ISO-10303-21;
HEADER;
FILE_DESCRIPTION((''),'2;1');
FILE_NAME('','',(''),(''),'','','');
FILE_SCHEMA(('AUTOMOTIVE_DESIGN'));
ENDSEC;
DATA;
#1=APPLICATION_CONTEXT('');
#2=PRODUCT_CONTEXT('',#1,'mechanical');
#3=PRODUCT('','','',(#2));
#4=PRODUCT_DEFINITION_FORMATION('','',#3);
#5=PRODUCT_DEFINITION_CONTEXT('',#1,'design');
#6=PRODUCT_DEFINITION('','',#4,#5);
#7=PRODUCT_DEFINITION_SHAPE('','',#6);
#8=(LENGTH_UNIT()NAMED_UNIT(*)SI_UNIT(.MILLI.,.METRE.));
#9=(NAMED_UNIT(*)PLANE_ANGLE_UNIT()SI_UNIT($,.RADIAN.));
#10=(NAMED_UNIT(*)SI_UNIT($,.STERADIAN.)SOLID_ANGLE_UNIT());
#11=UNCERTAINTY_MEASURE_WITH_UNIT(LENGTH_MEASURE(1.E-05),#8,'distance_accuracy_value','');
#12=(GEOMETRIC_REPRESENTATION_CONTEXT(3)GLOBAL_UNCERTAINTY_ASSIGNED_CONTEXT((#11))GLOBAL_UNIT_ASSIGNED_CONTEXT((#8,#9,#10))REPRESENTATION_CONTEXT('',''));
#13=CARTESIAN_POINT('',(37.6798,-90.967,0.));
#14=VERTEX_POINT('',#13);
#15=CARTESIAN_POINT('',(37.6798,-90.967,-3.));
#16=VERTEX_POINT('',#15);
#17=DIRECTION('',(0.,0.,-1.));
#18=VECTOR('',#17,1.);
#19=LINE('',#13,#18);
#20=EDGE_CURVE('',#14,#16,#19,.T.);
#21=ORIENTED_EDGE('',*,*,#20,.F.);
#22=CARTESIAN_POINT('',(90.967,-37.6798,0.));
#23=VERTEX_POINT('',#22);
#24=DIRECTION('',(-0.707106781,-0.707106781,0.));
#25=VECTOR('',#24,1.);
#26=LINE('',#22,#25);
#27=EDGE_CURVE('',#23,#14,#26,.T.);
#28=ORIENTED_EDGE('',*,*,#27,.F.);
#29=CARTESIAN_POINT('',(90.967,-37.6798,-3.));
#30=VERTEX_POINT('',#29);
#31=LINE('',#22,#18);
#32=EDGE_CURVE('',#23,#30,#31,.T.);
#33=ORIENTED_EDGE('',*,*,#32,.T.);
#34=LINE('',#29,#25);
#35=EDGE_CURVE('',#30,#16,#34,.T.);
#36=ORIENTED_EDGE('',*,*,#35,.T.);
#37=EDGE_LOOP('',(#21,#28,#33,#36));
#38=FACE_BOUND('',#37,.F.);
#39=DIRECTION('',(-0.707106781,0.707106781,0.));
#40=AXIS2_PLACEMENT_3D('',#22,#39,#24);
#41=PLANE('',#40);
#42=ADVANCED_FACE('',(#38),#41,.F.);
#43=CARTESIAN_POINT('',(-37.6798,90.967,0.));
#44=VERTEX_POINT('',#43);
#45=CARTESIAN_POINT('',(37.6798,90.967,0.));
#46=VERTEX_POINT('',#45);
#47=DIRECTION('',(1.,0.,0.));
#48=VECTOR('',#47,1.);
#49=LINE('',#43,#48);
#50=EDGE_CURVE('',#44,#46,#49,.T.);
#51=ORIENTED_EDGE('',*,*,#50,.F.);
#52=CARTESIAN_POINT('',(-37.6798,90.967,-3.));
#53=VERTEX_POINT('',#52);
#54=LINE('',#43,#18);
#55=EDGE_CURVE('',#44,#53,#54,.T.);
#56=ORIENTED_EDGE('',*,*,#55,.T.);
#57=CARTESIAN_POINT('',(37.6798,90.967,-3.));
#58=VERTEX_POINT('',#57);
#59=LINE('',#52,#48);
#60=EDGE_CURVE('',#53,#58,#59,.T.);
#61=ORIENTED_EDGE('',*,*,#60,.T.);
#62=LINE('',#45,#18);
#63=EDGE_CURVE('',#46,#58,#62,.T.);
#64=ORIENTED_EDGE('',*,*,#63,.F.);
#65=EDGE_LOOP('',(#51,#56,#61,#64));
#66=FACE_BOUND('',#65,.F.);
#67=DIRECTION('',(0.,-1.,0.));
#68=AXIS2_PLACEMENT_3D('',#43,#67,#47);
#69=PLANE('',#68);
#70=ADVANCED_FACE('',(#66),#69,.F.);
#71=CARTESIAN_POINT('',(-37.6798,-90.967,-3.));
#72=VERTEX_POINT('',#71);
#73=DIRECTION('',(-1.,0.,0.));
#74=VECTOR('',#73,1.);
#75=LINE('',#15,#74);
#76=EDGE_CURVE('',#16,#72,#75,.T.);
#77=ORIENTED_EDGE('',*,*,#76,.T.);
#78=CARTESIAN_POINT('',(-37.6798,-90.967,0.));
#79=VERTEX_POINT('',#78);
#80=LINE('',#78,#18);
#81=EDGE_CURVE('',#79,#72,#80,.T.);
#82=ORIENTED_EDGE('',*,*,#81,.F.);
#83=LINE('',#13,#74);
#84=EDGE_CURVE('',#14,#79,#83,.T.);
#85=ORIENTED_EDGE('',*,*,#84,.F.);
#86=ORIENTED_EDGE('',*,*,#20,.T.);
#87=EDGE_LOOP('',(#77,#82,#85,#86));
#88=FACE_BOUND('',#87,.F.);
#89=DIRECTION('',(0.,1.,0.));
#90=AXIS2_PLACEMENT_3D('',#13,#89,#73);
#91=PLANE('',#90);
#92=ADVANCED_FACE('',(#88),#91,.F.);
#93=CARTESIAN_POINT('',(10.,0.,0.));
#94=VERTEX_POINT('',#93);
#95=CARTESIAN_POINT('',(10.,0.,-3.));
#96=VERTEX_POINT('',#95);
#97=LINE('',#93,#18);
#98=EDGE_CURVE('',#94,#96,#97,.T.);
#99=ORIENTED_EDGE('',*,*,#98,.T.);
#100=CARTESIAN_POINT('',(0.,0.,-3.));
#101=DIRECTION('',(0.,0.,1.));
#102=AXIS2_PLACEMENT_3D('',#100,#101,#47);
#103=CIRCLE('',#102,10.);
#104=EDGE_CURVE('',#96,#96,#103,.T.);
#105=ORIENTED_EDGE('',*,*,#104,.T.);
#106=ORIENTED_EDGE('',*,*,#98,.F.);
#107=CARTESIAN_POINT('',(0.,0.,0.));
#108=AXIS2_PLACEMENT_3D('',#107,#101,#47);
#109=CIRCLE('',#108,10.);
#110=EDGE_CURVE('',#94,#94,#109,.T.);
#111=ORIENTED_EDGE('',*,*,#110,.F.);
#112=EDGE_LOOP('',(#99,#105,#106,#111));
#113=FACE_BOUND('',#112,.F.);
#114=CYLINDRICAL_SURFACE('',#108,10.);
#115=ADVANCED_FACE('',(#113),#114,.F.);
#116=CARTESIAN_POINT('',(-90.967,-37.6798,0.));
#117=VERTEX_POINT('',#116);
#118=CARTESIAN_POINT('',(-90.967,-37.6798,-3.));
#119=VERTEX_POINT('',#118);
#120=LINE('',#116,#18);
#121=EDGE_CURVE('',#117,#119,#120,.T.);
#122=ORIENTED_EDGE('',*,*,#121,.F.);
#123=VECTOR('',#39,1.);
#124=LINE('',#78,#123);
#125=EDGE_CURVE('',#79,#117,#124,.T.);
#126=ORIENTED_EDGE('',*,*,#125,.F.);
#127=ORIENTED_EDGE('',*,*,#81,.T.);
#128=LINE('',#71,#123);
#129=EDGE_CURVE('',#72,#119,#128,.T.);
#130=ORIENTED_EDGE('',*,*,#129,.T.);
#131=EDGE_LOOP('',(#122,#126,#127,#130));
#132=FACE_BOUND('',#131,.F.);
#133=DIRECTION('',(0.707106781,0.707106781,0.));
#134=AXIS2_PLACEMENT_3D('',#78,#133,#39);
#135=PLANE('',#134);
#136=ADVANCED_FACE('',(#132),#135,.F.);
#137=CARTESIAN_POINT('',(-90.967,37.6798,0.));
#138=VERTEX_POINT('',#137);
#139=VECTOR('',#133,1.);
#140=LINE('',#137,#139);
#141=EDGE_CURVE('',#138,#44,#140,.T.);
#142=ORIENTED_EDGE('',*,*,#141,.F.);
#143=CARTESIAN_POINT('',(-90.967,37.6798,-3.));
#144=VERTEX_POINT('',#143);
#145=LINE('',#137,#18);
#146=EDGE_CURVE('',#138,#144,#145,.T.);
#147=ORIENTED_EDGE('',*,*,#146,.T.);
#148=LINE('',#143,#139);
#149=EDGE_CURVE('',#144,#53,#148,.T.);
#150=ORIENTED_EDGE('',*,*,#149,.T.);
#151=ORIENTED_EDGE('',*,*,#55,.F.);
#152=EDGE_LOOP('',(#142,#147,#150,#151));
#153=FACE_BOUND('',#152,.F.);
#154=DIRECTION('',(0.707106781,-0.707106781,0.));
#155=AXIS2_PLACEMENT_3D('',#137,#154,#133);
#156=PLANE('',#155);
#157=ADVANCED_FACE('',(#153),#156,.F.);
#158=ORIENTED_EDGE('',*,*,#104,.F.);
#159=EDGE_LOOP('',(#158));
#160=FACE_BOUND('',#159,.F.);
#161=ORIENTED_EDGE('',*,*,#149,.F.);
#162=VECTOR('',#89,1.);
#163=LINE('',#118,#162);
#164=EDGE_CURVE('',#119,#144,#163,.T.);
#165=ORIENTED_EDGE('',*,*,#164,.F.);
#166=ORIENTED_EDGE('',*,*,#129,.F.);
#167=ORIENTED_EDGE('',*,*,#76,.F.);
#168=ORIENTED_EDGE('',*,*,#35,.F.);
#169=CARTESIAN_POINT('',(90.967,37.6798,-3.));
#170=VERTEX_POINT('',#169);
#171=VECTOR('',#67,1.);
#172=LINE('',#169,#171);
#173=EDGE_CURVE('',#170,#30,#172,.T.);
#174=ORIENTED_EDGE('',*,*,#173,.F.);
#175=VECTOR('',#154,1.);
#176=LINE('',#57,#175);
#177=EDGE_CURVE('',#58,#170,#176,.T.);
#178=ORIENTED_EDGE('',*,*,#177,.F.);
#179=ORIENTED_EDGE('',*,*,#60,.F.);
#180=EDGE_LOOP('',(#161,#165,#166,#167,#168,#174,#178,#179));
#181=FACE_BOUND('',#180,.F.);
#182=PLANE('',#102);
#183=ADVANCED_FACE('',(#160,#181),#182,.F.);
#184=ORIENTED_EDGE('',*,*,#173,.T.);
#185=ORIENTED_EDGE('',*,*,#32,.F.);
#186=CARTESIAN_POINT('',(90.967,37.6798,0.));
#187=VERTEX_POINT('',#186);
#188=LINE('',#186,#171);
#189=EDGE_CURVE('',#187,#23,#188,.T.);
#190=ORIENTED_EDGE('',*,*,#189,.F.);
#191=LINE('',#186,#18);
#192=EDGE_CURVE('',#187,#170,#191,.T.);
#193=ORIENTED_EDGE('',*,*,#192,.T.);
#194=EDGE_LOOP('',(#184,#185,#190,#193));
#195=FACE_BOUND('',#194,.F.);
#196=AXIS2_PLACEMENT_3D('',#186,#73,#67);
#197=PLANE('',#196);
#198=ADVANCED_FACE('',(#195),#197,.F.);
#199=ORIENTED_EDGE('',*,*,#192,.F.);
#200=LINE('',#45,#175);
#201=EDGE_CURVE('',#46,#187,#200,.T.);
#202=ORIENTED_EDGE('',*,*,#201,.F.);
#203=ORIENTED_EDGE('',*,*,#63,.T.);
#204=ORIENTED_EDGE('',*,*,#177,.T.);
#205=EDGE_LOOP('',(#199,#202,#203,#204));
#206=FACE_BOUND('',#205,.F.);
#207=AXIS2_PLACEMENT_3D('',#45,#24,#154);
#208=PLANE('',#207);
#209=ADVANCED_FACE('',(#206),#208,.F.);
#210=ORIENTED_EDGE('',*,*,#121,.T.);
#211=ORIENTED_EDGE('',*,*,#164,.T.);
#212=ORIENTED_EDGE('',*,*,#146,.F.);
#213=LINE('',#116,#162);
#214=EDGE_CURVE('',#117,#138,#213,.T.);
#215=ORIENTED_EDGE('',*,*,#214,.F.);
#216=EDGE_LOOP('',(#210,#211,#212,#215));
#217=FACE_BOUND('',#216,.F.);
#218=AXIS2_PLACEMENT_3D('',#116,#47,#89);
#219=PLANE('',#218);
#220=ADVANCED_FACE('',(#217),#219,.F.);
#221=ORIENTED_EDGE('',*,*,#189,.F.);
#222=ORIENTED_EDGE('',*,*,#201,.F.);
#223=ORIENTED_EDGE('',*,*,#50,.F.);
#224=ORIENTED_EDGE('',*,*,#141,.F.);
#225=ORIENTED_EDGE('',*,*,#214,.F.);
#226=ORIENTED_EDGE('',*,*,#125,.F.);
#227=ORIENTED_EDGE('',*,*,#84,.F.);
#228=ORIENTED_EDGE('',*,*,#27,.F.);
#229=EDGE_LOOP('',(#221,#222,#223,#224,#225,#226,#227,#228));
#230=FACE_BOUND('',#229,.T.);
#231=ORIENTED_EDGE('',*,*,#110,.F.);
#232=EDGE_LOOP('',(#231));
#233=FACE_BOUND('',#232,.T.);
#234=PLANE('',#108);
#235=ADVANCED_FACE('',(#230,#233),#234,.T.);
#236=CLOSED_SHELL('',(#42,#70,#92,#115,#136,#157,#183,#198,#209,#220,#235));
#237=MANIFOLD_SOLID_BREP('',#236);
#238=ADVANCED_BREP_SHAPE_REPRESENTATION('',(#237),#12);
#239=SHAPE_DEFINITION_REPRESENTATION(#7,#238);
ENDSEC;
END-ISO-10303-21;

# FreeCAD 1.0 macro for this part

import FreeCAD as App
import Part
import Sketcher
Q = App.Units.Quantity

doc = App.newDocument("Part")
body = doc.addObject("PartDesign::Body", "Body")

# Sketch on XY plane
sketch1 = doc.addObject("Sketcher::SketchObject", "Sketch")
body.addObject(sketch1)
sketch1.AttachmentSupport = (doc.XY_Plane, [""])
sketch1.MapMode = "FlatFace"
sketch1.addGeometry(Part.LineSegment(App.Vector(90.967, -37.6798, 0), App.Vector(90.967, 37.6798, 0)), False)
sketch1.addGeometry(Part.LineSegment(App.Vector(90.967, 37.6798, 0), App.Vector(37.6798, 90.967, 0)), False)
sketch1.addGeometry(Part.LineSegment(App.Vector(37.6798, 90.967, 0), App.Vector(-37.6798, 90.967, 0)), False)
sketch1.addGeometry(Part.LineSegment(App.Vector(-37.6798, 90.967, 0), App.Vector(-90.967, 37.6798, 0)), False)
sketch1.addGeometry(Part.LineSegment(App.Vector(-90.967, 37.6798, 0), App.Vector(-90.967, -37.6798, 0)), False)
sketch1.addGeometry(Part.LineSegment(App.Vector(-90.967, -37.6798, 0), App.Vector(-37.6798, -90.967, 0)), False)
sketch1.addGeometry(Part.LineSegment(App.Vector(-37.6798, -90.967, 0), App.Vector(37.6798, -90.967, 0)), False)
sketch1.addGeometry(Part.LineSegment(App.Vector(37.6798, -90.967, 0), App.Vector(90.967, -37.6798, 0)), False)
sketch1.addGeometry(Part.Circle(App.Vector(0, 0, 0), App.Vector(0, 0, 1), 10), False)
sketch1.addConstraint(Sketcher.Constraint("Coincident", 0, 2, 1, 1))
sketch1.addConstraint(Sketcher.Constraint("Coincident", 1, 2, 2, 1))
sketch1.addConstraint(Sketcher.Constraint("Coincident", 2, 2, 3, 1))
sketch1.addConstraint(Sketcher.Constraint("Coincident", 3, 2, 4, 1))
sketch1.addConstraint(Sketcher.Constraint("Coincident", 4, 2, 5, 1))
sketch1.addConstraint(Sketcher.Constraint("Coincident", 5, 2, 6, 1))
sketch1.addConstraint(Sketcher.Constraint("Coincident", 6, 2, 7, 1))
sketch1.addConstraint(Sketcher.Constraint("Coincident", 7, 2, 0, 1))
sketch1.addConstraint(Sketcher.Constraint("Vertical", 0))
sketch1.addConstraint(Sketcher.Constraint("Horizontal", 2))
sketch1.addConstraint(Sketcher.Constraint("Vertical", 4))
sketch1.addConstraint(Sketcher.Constraint("Horizontal", 6))
sketch1.addConstraint(Sketcher.Constraint("Coincident", 8, 3, -1, 1))
sketch1.addConstraint(Sketcher.Constraint("Symmetric", 0, 2, 4, 2, -1, 1))
sketch1.addConstraint(Sketcher.Constraint("Symmetric", 1, 2, 5, 2, -1, 1))
sketch1.addConstraint(Sketcher.Constraint("Perpendicular", 1, 3))
sketch1.addConstraint(Sketcher.Constraint("Perpendicular", 5, 7))
sketch1.addConstraint(Sketcher.Constraint("Horizontal", 0, 2, 3, 2))
sketch1.addConstraint(Sketcher.Constraint("Horizontal", 4, 2, 7, 2))
sketch1.addConstraint(Sketcher.Constraint("Vertical", 2, 2, 5, 2))
sketch1.addConstraint(Sketcher.Constraint("Equal", 6, 0))
sketch1.addConstraint(Sketcher.Constraint("Diameter", 8, Q("20 mm")))
sketch1.addConstraint(Sketcher.Constraint("DistanceX", 2, 2, 2, 1, Q("75.3596 mm")))
sketch1.addConstraint(Sketcher.Constraint("DistanceX", -1, 1, 0, 2, Q("90.967 mm")))
pad1 = doc.addObject("PartDesign::Pad", "Pad")
body.addObject(pad1)
pad1.Profile = sketch1
pad1.Length = 3
pad1.Reversed = True

doc.recompute()
